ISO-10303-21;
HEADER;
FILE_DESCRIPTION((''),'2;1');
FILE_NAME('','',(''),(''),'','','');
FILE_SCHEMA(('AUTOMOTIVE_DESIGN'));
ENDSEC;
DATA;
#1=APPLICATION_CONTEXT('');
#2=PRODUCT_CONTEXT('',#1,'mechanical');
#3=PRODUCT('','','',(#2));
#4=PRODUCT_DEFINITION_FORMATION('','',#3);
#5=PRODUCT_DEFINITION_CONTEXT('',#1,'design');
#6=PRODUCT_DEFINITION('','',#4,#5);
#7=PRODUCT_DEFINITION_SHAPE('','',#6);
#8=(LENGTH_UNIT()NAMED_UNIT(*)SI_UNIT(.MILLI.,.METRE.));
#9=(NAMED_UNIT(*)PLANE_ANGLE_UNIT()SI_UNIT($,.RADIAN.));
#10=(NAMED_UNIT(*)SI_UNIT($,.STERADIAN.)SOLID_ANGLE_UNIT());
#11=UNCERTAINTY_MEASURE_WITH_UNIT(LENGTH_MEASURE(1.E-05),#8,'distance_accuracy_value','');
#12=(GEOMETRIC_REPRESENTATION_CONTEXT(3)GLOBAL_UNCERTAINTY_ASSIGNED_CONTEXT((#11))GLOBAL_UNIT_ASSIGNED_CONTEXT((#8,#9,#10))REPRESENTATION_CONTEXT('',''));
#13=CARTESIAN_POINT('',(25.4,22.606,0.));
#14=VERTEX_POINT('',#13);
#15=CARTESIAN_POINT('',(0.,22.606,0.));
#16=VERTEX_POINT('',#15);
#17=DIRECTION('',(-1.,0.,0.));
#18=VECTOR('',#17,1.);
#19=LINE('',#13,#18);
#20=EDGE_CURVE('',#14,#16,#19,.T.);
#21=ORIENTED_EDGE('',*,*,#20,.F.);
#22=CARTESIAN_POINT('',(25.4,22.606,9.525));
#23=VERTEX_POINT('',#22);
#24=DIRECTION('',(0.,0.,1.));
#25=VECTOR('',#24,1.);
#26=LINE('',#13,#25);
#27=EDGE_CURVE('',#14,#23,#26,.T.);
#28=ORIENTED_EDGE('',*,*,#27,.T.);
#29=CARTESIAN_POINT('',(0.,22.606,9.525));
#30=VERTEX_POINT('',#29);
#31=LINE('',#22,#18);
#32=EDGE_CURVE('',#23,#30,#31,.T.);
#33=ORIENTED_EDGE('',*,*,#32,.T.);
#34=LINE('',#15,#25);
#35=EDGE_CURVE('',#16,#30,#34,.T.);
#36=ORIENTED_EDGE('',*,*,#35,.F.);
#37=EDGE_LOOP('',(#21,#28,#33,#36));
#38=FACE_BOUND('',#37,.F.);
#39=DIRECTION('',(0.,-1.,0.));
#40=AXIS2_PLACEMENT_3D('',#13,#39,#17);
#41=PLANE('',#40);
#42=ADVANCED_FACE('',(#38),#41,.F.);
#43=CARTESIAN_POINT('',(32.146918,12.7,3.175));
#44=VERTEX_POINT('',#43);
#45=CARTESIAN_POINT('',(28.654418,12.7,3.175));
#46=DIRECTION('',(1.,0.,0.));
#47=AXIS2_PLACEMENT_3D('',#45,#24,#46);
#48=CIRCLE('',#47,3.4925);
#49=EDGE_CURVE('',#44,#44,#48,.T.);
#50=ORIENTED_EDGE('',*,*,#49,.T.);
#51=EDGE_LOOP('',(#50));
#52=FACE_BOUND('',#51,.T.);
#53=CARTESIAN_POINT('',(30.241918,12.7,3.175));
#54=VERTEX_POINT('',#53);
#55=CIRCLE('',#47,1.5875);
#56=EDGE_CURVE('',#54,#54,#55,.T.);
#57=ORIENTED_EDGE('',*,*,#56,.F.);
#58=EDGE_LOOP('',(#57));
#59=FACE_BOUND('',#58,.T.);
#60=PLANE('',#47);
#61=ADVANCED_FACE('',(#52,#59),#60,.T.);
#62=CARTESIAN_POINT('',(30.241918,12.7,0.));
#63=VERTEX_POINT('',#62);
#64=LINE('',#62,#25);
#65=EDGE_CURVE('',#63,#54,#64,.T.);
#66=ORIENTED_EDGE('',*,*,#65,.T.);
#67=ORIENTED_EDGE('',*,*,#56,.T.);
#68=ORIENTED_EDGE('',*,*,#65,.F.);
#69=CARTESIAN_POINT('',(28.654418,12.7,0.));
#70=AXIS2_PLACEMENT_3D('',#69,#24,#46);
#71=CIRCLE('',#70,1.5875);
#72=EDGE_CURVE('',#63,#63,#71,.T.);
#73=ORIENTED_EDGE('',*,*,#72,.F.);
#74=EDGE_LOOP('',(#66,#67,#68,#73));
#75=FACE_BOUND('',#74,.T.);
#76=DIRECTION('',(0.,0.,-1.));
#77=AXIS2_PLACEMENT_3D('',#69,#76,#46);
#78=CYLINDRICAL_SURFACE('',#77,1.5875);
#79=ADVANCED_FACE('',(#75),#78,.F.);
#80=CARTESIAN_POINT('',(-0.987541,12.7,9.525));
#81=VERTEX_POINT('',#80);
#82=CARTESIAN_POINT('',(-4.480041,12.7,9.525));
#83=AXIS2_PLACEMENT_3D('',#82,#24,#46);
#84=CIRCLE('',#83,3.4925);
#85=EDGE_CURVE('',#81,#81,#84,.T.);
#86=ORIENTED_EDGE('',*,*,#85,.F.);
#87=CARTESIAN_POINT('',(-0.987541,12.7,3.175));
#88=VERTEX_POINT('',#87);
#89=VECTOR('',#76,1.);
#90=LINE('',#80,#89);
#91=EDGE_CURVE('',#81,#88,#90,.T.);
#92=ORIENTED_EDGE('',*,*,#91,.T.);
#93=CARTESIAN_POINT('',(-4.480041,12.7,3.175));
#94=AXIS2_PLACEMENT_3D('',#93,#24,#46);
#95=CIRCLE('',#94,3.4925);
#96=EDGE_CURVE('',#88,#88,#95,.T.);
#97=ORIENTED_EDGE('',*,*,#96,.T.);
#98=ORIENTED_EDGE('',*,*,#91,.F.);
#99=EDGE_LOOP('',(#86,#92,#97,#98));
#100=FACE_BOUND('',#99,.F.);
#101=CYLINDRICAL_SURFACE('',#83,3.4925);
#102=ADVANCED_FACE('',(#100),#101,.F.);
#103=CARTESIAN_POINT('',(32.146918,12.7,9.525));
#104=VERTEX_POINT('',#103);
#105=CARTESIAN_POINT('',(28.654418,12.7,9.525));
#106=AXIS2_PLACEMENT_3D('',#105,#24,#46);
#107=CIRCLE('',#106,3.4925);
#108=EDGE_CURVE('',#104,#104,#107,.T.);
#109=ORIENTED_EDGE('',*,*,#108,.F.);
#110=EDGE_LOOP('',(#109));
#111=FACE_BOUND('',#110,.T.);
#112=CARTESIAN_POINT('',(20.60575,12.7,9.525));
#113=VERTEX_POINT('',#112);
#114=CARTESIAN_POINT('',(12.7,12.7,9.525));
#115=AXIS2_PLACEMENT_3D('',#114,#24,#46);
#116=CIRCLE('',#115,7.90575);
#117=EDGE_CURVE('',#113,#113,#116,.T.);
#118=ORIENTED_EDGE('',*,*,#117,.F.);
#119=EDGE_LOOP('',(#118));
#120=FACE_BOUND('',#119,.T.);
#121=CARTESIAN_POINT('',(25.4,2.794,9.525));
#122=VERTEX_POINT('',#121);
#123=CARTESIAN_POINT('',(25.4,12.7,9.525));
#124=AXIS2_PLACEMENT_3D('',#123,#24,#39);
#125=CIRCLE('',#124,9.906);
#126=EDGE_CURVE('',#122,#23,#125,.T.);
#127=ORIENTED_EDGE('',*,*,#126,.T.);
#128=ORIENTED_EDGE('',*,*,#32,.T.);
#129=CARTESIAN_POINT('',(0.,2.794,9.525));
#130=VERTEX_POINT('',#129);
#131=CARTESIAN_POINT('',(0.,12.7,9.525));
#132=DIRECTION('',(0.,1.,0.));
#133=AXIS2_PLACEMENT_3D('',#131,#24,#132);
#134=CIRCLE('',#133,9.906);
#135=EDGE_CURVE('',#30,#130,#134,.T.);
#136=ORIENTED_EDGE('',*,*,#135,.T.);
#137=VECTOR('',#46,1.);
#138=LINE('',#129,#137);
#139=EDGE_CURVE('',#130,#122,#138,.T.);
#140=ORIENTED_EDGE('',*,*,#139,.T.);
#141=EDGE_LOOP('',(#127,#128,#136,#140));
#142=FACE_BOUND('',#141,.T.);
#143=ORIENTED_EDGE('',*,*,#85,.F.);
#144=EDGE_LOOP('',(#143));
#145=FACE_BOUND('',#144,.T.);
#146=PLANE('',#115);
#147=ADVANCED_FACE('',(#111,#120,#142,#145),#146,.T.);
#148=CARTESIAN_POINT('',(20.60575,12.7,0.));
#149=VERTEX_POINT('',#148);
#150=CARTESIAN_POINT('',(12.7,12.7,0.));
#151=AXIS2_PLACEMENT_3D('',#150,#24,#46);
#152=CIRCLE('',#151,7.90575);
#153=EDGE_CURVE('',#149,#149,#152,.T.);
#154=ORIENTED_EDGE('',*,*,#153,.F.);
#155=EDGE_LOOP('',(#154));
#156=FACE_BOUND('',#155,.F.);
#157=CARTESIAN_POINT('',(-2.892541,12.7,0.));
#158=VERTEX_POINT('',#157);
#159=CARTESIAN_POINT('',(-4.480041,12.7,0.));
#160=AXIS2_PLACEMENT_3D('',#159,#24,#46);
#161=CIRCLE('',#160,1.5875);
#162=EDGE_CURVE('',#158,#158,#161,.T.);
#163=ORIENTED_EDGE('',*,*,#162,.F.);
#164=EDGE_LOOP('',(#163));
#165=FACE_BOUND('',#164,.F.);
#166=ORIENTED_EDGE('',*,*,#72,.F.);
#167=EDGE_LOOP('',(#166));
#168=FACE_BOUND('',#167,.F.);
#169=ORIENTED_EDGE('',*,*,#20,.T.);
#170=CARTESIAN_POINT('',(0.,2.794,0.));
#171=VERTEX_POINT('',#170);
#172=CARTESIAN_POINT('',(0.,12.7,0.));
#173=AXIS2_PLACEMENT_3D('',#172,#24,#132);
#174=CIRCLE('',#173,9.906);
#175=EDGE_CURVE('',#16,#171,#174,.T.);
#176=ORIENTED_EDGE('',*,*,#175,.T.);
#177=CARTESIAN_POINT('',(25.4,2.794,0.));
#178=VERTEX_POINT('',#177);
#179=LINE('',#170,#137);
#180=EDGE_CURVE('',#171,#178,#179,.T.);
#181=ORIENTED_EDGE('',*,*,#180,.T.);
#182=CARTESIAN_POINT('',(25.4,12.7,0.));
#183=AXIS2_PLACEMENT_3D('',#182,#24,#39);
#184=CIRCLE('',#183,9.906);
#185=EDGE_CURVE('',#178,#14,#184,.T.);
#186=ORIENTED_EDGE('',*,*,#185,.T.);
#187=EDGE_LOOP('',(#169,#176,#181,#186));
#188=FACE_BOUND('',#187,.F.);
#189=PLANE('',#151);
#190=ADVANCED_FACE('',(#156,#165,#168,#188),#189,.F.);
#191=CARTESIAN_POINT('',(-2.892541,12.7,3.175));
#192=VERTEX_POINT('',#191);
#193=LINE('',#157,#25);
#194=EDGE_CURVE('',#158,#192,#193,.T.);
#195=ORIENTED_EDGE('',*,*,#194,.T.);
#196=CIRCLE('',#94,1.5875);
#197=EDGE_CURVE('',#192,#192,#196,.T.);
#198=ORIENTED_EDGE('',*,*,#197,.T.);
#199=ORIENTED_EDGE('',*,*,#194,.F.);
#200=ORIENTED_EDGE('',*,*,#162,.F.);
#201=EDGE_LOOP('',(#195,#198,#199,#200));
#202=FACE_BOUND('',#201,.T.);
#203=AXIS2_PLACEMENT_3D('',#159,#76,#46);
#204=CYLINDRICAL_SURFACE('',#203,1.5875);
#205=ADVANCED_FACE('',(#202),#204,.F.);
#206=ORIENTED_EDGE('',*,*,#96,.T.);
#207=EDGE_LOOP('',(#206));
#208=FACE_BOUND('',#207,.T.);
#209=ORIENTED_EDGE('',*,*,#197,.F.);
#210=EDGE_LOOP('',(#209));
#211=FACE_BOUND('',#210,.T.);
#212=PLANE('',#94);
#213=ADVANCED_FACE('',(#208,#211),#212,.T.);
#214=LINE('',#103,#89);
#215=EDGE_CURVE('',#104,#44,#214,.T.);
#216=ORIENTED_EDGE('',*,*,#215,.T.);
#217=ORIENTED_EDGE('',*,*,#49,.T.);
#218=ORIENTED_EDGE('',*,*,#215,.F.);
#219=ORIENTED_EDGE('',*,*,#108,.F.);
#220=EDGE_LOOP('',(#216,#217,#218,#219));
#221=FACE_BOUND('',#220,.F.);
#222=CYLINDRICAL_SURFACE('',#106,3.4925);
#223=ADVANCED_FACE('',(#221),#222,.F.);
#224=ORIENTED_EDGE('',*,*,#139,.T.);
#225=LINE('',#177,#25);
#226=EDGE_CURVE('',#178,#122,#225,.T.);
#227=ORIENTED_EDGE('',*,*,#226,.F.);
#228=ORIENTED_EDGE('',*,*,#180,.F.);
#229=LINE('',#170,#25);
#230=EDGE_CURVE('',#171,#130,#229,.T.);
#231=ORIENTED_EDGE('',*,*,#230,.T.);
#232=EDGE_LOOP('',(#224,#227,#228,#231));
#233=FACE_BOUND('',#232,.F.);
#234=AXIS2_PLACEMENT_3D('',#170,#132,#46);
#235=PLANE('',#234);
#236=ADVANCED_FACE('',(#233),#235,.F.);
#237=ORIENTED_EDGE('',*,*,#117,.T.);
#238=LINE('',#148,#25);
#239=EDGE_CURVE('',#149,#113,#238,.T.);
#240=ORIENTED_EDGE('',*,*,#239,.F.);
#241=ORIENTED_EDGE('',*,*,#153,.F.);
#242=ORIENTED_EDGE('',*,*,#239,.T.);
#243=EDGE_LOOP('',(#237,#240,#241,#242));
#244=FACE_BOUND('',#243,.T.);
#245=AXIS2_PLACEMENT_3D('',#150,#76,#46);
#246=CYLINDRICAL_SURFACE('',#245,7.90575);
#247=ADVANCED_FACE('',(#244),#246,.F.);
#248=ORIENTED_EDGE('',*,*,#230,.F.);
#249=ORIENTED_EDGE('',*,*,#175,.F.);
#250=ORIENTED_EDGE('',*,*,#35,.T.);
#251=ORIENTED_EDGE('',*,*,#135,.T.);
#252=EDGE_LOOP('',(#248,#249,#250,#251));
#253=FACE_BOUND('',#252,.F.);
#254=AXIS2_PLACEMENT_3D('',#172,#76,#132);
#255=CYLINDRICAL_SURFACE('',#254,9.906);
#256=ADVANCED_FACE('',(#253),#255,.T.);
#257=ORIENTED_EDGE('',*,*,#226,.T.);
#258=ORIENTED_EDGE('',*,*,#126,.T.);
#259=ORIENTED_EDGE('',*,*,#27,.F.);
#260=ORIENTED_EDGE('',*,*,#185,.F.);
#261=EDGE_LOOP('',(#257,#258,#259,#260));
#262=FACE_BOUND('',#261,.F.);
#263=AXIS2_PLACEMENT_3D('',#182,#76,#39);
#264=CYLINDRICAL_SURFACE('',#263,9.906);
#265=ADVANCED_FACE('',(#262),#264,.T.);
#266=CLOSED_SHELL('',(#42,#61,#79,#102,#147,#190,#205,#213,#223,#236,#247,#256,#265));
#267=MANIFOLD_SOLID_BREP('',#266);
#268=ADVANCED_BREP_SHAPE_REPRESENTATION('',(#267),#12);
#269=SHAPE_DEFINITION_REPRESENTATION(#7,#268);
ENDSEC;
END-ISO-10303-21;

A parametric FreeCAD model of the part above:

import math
import FreeCAD as App
import Part
import Sketcher

V = App.Vector
Q = App.Units.Quantity

doc = App.newDocument("Part")
body = doc.addObject("PartDesign::Body", "Body")

# Sketch on XY plane
sketch1 = body.newObject("Sketcher::SketchObject", "Sketch")
sketch1.AttachmentSupport = (doc.getObject("XY_Plane"), [""])
sketch1.MapMode = "FlatFace"
sketch1.addGeometry(Part.LineSegment(V(25.4, 22.606, 0), V(0, 22.606, 0)), False)
sketch1.addGeometry(Part.ArcOfCircle(Part.Circle(V(0, 12.7, 0), V(0, 0, 1), 9.906), math.radians(90), math.radians(270)), False)
sketch1.addGeometry(Part.LineSegment(V(0, 2.794, 0), V(25.4, 2.794, 0)), False)
sketch1.addGeometry(Part.ArcOfCircle(Part.Circle(V(25.4, 12.7, 0), V(0, 0, 1), 9.906), math.radians(-90), math.radians(90)), False)
sketch1.addGeometry(Part.Circle(V(-4.480041, 12.7, 0), V(0, 0, 1), 1.5875), False)
sketch1.addGeometry(Part.Circle(V(12.7, 12.7, 0), V(0, 0, 1), 7.90575), False)
sketch1.addGeometry(Part.Circle(V(28.654418, 12.7, 0), V(0, 0, 1), 1.5875), False)
sketch1.addConstraint(Sketcher.Constraint("Tangent", 0, 2, 1, 1))
sketch1.addConstraint(Sketcher.Constraint("Tangent", 1, 2, 2, 1))
sketch1.addConstraint(Sketcher.Constraint("Tangent", 2, 2, 3, 1))
sketch1.addConstraint(Sketcher.Constraint("Tangent", 3, 2, 0, 1))
sketch1.addConstraint(Sketcher.Constraint("Horizontal", 0))
sketch1.addConstraint(Sketcher.Constraint("Horizontal", 2))
sketch1.addConstraint(Sketcher.Constraint("Equal", 4, 6))
sketch1.addConstraint(Sketcher.Constraint("PointOnObject", 1, 3, -2))
sketch1.addConstraint(Sketcher.Constraint("Horizontal", 3, 3, 4, 3))
sketch1.addConstraint(Sketcher.Constraint("Horizontal", 4, 3, 5, 3))
sketch1.addConstraint(Sketcher.Constraint("Horizontal", 5, 3, 6, 3))
sketch1.addConstraint(Sketcher.Constraint("DistanceX", 0, 2, 0, 1, Q("1 in")))
sketch1.addConstraint(Sketcher.Constraint("Radius", 1, Q("0.39 in")))
sketch1.addConstraint(Sketcher.Constraint("Diameter", 4, Q("0.125 in")))
sketch1.addConstraint(Sketcher.Constraint("Diameter", 5, Q("0.6225 in")))
sketch1.addConstraint(Sketcher.Constraint("DistanceY", -1, 1, 1, 3, Q("0.5 in")))
sketch1.addConstraint(Sketcher.Constraint("DistanceX", -1, 1, 5, 3, Q("0.5 in")))
sketch1.addConstraint(Sketcher.Constraint("DistanceX", 4, 3, -1, 1, Q("4.480041 mm")))
sketch1.addConstraint(Sketcher.Constraint("DistanceX", -1, 1, 6, 3, Q("28.654418 mm")))
pad1 = body.newObject("PartDesign::Pad", "Pad")
pad1.Profile = sketch1
pad1.Length = Q("0.375 in")

# Sketch on XY plane
sketch2 = body.newObject("Sketcher::SketchObject", "Sketch001")
sketch2.AttachmentSupport = (doc.getObject("XY_Plane"), [""])
sketch2.MapMode = "FlatFace"
sketch2.AttachmentOffset = App.Placement(V(0, 0, 0.375 * 25.4), App.Rotation())
sketch2.addGeometry(Part.Circle(V(-4.480041, 12.7, 0), V(0, 0, 1), 3.4925), False)
sketch2.addGeometry(Part.Circle(V(-4.480041, 12.7, 0), V(0, 0, 1), 1.5875), False)
sketch2.addGeometry(Part.Circle(V(28.654418, 12.7, 0), V(0, 0, 1), 3.4925), False)
sketch2.addGeometry(Part.Circle(V(28.654418, 12.7, 0), V(0, 0, 1), 1.5875), False)
sketch2.addConstraint(Sketcher.Constraint("Coincident", 1, 3, 0, 3))
sketch2.addConstraint(Sketcher.Constraint("Coincident", 3, 3, 2, 3))
sketch2.addConstraint(Sketcher.Constraint("Equal", 0, 2))
sketch2.addConstraint(Sketcher.Constraint("Equal", 1, 3))
sketch2.addConstraint(Sketcher.Constraint("Horizontal", 1, 3, 2, 3))
sketch2.addConstraint(Sketcher.Constraint("Diameter", 0, Q("0.275 in")))
sketch2.addConstraint(Sketcher.Constraint("Diameter", 1, Q("0.125 in")))
sketch2.addConstraint(Sketcher.Constraint("DistanceY", -1, 1, 0, 3, Q("0.5 in")))
sketch2.addConstraint(Sketcher.Constraint("DistanceX", 0, 3, -1, 1, Q("4.480041 mm")))
sketch2.addConstraint(Sketcher.Constraint("DistanceX", -1, 1, 2, 3, Q("28.654418 mm")))
pocket1 = body.newObject("PartDesign::Pocket", "Pocket")
pocket1.Profile = sketch2
pocket1.Length = Q("0.25 in")

doc.recompute()
